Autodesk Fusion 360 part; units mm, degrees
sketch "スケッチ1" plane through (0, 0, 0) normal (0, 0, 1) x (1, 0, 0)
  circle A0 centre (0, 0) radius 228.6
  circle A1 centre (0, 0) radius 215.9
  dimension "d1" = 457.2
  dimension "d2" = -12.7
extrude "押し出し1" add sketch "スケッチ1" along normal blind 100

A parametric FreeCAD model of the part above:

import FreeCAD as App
import Part
import Sketcher
Q = App.Units.Quantity

doc = App.newDocument("Part")
params = doc.addObject("Spreadsheet::Sheet", "Params")
for row, (alias, value) in enumerate([
    ("sketch1_diameter", "18 in"),
    ("sketch1_diameter2", "17 in"),
    ("pad1_length", "3.9370079 in"),
], start=1):
    params.set(f"A{row}", alias)
    params.set(f"B{row}", "=" + value)
    params.setAlias(f"B{row}", alias)

body = doc.addObject("PartDesign::Body", "Body")

# Sketch on XY plane
sketch1 = body.newObject("Sketcher::SketchObject", "Sketch")
sketch1.AttachmentSupport = (doc.getObject("XY_Plane"), [""])
sketch1.MapMode = "FlatFace"
sketch1.addGeometry(Part.Circle(App.Vector(0, 0, 0), App.Vector(0, 0, 1), 229), False)
sketch1.addGeometry(Part.Circle(App.Vector(0, 0, 0), App.Vector(0, 0, 1), 216), False)
sketch1.addConstraint(Sketcher.Constraint("Coincident", 0, 3, -1, 1))
sketch1.addConstraint(Sketcher.Constraint("Coincident", 1, 3, -1, 1))
sketch1.addConstraint(Sketcher.Constraint("Diameter", 0, Q("18 in")))
sketch1.addConstraint(Sketcher.Constraint("Diameter", 1, Q("17 in")))
sketch1.setExpression("Constraints[2]", "Params.sketch1_diameter")
sketch1.setExpression("Constraints[3]", "Params.sketch1_diameter2")
pad1 = body.newObject("PartDesign::Pad", "Pad")
pad1.Profile = sketch1
pad1.setExpression("Length", "Params.pad1_length")

doc.recompute()
